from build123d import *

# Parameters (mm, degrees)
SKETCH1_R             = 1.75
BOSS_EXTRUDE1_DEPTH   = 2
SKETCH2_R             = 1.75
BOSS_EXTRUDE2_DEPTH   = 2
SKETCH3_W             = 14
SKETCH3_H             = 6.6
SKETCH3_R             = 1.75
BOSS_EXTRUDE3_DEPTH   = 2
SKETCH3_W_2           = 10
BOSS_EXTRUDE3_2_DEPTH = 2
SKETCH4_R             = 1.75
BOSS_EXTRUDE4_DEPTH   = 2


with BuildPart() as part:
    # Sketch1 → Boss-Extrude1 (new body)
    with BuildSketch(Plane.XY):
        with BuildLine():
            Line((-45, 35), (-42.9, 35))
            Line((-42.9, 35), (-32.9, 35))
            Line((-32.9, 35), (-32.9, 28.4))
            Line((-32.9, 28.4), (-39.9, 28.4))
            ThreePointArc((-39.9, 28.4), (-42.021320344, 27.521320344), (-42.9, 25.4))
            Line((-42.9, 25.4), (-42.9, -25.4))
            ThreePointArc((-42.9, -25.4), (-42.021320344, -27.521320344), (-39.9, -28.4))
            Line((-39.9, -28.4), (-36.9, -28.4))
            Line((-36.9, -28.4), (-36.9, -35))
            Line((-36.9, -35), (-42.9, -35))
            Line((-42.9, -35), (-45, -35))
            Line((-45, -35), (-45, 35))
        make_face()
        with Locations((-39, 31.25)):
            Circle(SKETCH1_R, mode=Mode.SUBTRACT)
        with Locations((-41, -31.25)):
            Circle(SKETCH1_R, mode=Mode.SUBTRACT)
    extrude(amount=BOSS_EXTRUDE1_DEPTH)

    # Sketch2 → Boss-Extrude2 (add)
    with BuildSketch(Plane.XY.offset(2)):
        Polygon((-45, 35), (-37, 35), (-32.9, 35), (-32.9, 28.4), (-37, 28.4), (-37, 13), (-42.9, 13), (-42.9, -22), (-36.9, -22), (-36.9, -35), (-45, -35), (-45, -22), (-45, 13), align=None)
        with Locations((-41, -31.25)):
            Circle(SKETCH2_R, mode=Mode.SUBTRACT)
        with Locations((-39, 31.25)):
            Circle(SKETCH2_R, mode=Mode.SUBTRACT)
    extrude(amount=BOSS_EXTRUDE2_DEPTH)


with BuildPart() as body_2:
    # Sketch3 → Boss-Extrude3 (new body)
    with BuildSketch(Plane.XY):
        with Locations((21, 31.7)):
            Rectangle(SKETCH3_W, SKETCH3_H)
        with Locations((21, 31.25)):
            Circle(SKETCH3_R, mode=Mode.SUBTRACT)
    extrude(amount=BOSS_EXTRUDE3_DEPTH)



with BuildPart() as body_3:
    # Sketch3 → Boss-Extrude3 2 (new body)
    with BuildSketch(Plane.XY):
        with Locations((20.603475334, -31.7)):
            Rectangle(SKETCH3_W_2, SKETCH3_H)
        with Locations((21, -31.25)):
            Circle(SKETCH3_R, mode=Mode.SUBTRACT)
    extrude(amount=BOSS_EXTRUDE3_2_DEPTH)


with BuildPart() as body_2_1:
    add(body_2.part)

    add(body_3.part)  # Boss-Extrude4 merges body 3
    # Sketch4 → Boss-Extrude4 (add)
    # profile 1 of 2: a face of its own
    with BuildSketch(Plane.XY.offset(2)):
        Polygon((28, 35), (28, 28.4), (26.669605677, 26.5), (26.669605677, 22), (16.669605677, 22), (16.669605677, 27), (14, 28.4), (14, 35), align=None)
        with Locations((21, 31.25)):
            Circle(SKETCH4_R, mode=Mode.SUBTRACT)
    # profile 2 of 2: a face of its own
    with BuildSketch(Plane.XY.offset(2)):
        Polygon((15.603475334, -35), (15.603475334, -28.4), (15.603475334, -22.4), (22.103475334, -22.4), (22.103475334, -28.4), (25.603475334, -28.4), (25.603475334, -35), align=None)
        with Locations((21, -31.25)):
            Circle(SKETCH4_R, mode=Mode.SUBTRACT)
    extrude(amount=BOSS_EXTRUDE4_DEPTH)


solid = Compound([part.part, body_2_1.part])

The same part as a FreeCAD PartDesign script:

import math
import FreeCAD as App
import Part
import Sketcher
Q = App.Units.Quantity


def add_polygon(sketch, points):
    """Adds a closed chain of lines whose ends are joined by coincident constraints."""
    first, n = sketch.GeometryCount, len(points)
    for a, b in zip(points, points[1:] + points[:1]):
        sketch.addGeometry(Part.LineSegment(App.Vector(*a, 0), App.Vector(*b, 0)), False)
    for i in range(n):
        sketch.addConstraint(Sketcher.Constraint("Coincident", first + i, 2, first + (i + 1) % n, 1))

doc = App.newDocument("Part")
body = doc.addObject("PartDesign::Body", "Body")

sketch1 = doc.addObject("Sketcher::SketchObject", "Sketch")
body.addObject(sketch1)
sketch1.AttachmentSupport = (doc.XY_Plane, [""])
sketch1.MapMode = "FlatFace"
sketch1.addGeometry([
    Part.LineSegment(App.Vector(-32.9, 35, 0), App.Vector(-45, 35, 0)),
    Part.LineSegment(App.Vector(-45, 35, 0), App.Vector(-45, -35, 0)),
    Part.LineSegment(App.Vector(-45, -35, 0), App.Vector(-36.9, -35, 0)),
    Part.LineSegment(App.Vector(-36.9, -35, 0), App.Vector(-36.9, -28.4, 0)),
    Part.LineSegment(App.Vector(-36.9, -28.4, 0), App.Vector(-39.9, -28.4, 0)),
    Part.ArcOfCircle(Part.Circle(App.Vector(-39.9, -25.4, 0), App.Vector(0, 0, 1), 3), math.radians(180), math.radians(270)),
    Part.LineSegment(App.Vector(-42.9, -25.4, 0), App.Vector(-42.9, 25.4, 0)),
    Part.ArcOfCircle(Part.Circle(App.Vector(-39.9, 25.4, 0), App.Vector(0, 0, 1), 3), math.radians(90), math.radians(180)),
    Part.LineSegment(App.Vector(-39.9, 28.4, 0), App.Vector(-32.9, 28.4, 0)),
    Part.LineSegment(App.Vector(-32.9, 28.4, 0), App.Vector(-32.9, 35, 0)),
    Part.Circle(App.Vector(-41, -31.25, 0), App.Vector(0, 0, 1), 1.75),
    Part.Circle(App.Vector(-39, 31.25, 0), App.Vector(0, 0, 1), 1.75),
], False)
sketch1.addConstraint([
    Sketcher.Constraint("Coincident", 0, 2, 1, 1),
    Sketcher.Constraint("Coincident", 1, 2, 2, 1),
    Sketcher.Constraint("Coincident", 2, 2, 3, 1),
    Sketcher.Constraint("Coincident", 3, 2, 4, 1),
    Sketcher.Constraint("Tangent", 4, 2, 5, 2),
    Sketcher.Constraint("Tangent", 5, 1, 6, 1),
    Sketcher.Constraint("Tangent", 6, 2, 7, 2),
    Sketcher.Constraint("Tangent", 7, 1, 8, 1),
    Sketcher.Constraint("Coincident", 8, 2, 9, 1),
    Sketcher.Constraint("Coincident", 9, 2, 0, 1),
    Sketcher.Constraint("Horizontal", 0),
    Sketcher.Constraint("Vertical", 1),
    Sketcher.Constraint("Horizontal", 2),
    Sketcher.Constraint("Vertical", 3),
    Sketcher.Constraint("Horizontal", 4),
    Sketcher.Constraint("Vertical", 6),
    Sketcher.Constraint("Horizontal", 8),
    Sketcher.Constraint("Vertical", 9),
    Sketcher.Constraint("Equal", 5, 7),
    Sketcher.Constraint("Equal", 10, 11),
    Sketcher.Constraint("Equal", 3, 9),
    Sketcher.Constraint("Radius", 5, 3.0),
    Sketcher.Constraint("Diameter", 10, 3.5),
    Sketcher.Constraint("DistanceX", 4, 2, 4, 1, 3.0),
    Sketcher.Constraint("DistanceX", 8, 1, 8, 2, 7.0),
    Sketcher.Constraint("DistanceY", 1, 2, 1, 1, 70.0),
    Sketcher.Constraint("DistanceX", 0, 2, 0, 1, 12.1),
    Sketcher.Constraint("DistanceY", 3, 1, 3, 2, 6.6),
    Sketcher.Constraint("DistanceX", 10, 3, -1, 1, 41.0),
    Sketcher.Constraint("DistanceX", 11, 3, -1, 1, 39.0),
    Sketcher.Constraint("DistanceX", 0, 2, -1, 1, 45.0),
    Sketcher.Constraint("DistanceY", -1, 1, 0, 2, 35.0),
    Sketcher.Constraint("DistanceY", 10, 3, 11, 3, 62.5),
    Sketcher.Constraint("DistanceY", 10, 3, -1, 1, 31.25),
])
pad1 = doc.addObject("PartDesign::Pad", "Pad")
body.addObject(pad1)
pad1.Profile = sketch1
pad1.Length = 2

sketch2 = doc.addObject("Sketcher::SketchObject", "Sketch001")
body.addObject(sketch2)
sketch2.AttachmentSupport = (doc.XY_Plane, [""])
sketch2.MapMode = "FlatFace"
sketch2.AttachmentOffset = App.Placement(App.Vector(0, 0, 2), App.Rotation())
add_polygon(sketch2, [(-32.9, 35), (-45, 35), (-45, -35), (-36.9, -35), (-36.9, -22), (-42.9, -22), (-42.9, 13), (-37, 13), (-37, 28.4), (-32.9, 28.4)])
sketch2.addGeometry(Part.Circle(App.Vector(-41, -31.25, 0), App.Vector(0, 0, 1), 1.75), False)
sketch2.addGeometry(Part.Circle(App.Vector(-39, 31.25, 0), App.Vector(0, 0, 1), 1.75), False)
sketch2.addConstraint([
    Sketcher.Constraint("Horizontal", 0),
    Sketcher.Constraint("Vertical", 1),
    Sketcher.Constraint("Horizontal", 2),
    Sketcher.Constraint("Vertical", 3),
    Sketcher.Constraint("Horizontal", 4),
    Sketcher.Constraint("Vertical", 5),
    Sketcher.Constraint("Horizontal", 6),
    Sketcher.Constraint("Vertical", 7),
    Sketcher.Constraint("Horizontal", 8),
    Sketcher.Constraint("Vertical", 9),
    Sketcher.Constraint("Equal", 10, 11),
    Sketcher.Constraint("Diameter", 10, 3.5),
    Sketcher.Constraint("DistanceX", 4, 2, 4, 1, 6.0),
    Sketcher.Constraint("DistanceY", 1, 2, 1, 1, 70.0),
    Sketcher.Constraint("DistanceY", 3, 1, 3, 2, 13.0),
    Sketcher.Constraint("DistanceY", 5, 1, 5, 2, 35.0),
    Sketcher.Constraint("DistanceX", 0, 2, 0, 1, 12.1),
    Sketcher.Constraint("DistanceX", 2, 1, 2, 2, 8.1),
    Sketcher.Constraint("DistanceX", 6, 1, 6, 2, 5.9),
    Sketcher.Constraint("DistanceY", 7, 1, 7, 2, 15.4),
    Sketcher.Constraint("DistanceX", 10, 3, -1, 1, 41.0),
    Sketcher.Constraint("DistanceX", 11, 3, -1, 1, 39.0),
    Sketcher.Constraint("DistanceX", 0, 2, -1, 1, 45.0),
    Sketcher.Constraint("DistanceY", -1, 1, 0, 2, 35.0),
    Sketcher.Constraint("DistanceY", 10, 3, 11, 3, 62.5),
    Sketcher.Constraint("DistanceY", 10, 3, -1, 1, 31.25),
])
pad2 = doc.addObject("PartDesign::Pad", "Pad001")
body.addObject(pad2)
pad2.Profile = sketch2
pad2.Length = 2
body2 = doc.addObject("PartDesign::Body", "Body001")

sketch3 = doc.addObject("Sketcher::SketchObject", "Sketch002")
body2.addObject(sketch3)
sketch3.AttachmentSupport = (doc.getObject("XY_Plane001"), [""])
sketch3.MapMode = "FlatFace"
add_polygon(sketch3, [(14, 35), (14, 28.4), (28, 28.4), (28, 35)])
sketch3.addGeometry(Part.Circle(App.Vector(21, 31.25, 0), App.Vector(0, 0, 1), 1.75), False)
sketch3.addConstraint([
    Sketcher.Constraint("Vertical", 0),
    Sketcher.Constraint("Horizontal", 1),
    Sketcher.Constraint("Vertical", 2),
    Sketcher.Constraint("Horizontal", 3),
    Sketcher.Constraint("Diameter", 4, 3.5),
    Sketcher.Constraint("DistanceX", 1, 1, 1, 2, 14.0),
    Sketcher.Constraint("DistanceY", 0, 2, 0, 1, 6.6),
    Sketcher.Constraint("DistanceX", -1, 1, 4, 3, 21.0),
    Sketcher.Constraint("DistanceX", -1, 1, 0, 2, 14.0),
    Sketcher.Constraint("DistanceY", -1, 1, 2, 2, 35.0),
    Sketcher.Constraint("DistanceY", -1, 1, 4, 3, 31.25),
])
pad3 = doc.addObject("PartDesign::Pad", "Pad002")
body2.addObject(pad3)
pad3.Profile = sketch3
pad3.Length = 2
body3 = doc.addObject("PartDesign::Body", "Body002")

sketch4 = doc.addObject("Sketcher::SketchObject", "Sketch003")
body3.addObject(sketch4)
sketch4.AttachmentSupport = (doc.getObject("XY_Plane002"), [""])
sketch4.MapMode = "FlatFace"
add_polygon(sketch4, [(15.603475, -28.4), (15.603475, -35), (25.603475, -35), (25.603475, -28.4)])
sketch4.addGeometry(Part.Circle(App.Vector(21, -31.25, 0), App.Vector(0, 0, 1), 1.75), False)
sketch4.addConstraint([
    Sketcher.Constraint("Vertical", 0),
    Sketcher.Constraint("Horizontal", 1),
    Sketcher.Constraint("Vertical", 2),
    Sketcher.Constraint("Horizontal", 3),
    Sketcher.Constraint("Diameter", 4, 3.5),
    Sketcher.Constraint("DistanceX", 1, 1, 1, 2, 10.0),
    Sketcher.Constraint("DistanceY", 0, 2, 0, 1, 6.6),
    Sketcher.Constraint("DistanceX", -1, 1, 4, 3, 21.0),
    Sketcher.Constraint("DistanceY", 0, 2, -1, 1, 35.0),
    Sketcher.Constraint("DistanceY", 4, 3, -1, 1, 31.25),
    Sketcher.Constraint("DistanceX", -1, 1, 0, 2, 15.603475),
])
pad4 = doc.addObject("PartDesign::Pad", "Pad003")
body3.addObject(pad4)
pad4.Profile = sketch4
pad4.Length = 2
body2.AllowCompound = True
doc.recompute()

boolean = doc.addObject("PartDesign::Boolean", "Boolean")
body2.addObject(boolean)
boolean.Type = "Fuse"
boolean.addObjects([body3])

sketch5 = doc.addObject("Sketcher::SketchObject", "Sketch004")
body2.addObject(sketch5)
sketch5.AttachmentSupport = (doc.getObject("XY_Plane001"), [""])
sketch5.MapMode = "FlatFace"
sketch5.AttachmentOffset = App.Placement(App.Vector(0, 0, 2), App.Rotation())
add_polygon(sketch5, [(28, 28.4), (28, 35), (14, 35), (14, 28.4), (16.669606, 27), (16.669606, 22), (26.669606, 22), (26.669606, 26.5)])
sketch5.addGeometry(Part.Circle(App.Vector(21, 31.25, 0), App.Vector(0, 0, 1), 1.75), False)
add_polygon(sketch5, [(15.603475, -22.4), (15.603475, -35), (25.603475, -35), (25.603475, -28.4), (22.103475, -28.4), (22.103475, -22.4)])
sketch5.addGeometry(Part.Circle(App.Vector(21, -31.25, 0), App.Vector(0, 0, 1), 1.75), False)
sketch5.addConstraint([
    Sketcher.Constraint("Vertical", 0),
    Sketcher.Constraint("Horizontal", 1),
    Sketcher.Constraint("Vertical", 2),
    Sketcher.Constraint("Vertical", 4),
    Sketcher.Constraint("Horizontal", 5),
    Sketcher.Constraint("Vertical", 6),
    Sketcher.Constraint("Vertical", 9),
    Sketcher.Constraint("Horizontal", 10),
    Sketcher.Constraint("Vertical", 11),
    Sketcher.Constraint("Horizontal", 12),
    Sketcher.Constraint("Vertical", 13),
    Sketcher.Constraint("Horizontal", 14),
    Sketcher.Constraint("Equal", 8, 15),
    Sketcher.Constraint("Symmetric", 8, 3, 15, 3, -1),
    Sketcher.Constraint("Horizontal", 2, 2, 7, 2),
    Sketcher.Constraint("Equal", 5, 10),
    Sketcher.Constraint("Equal", 2, 11),
    Sketcher.Constraint("Diameter", 8, 3.5),
    Sketcher.Constraint("DistanceX", 1, 2, 1, 1, 14.0),
    Sketcher.Constraint("DistanceX", 5, 1, 5, 2, 10.0),
    Sketcher.Constraint("DistanceY", 4, 2, 4, 1, 5.0),
    Sketcher.Constraint("DistanceY", 13, 1, 13, 2, 6.0),
    Sketcher.Constraint("Angle", 7, Q("55 deg")),
    Sketcher.Constraint("DistanceX", 12, 2, 12, 1, 3.5),
    Sketcher.Constraint("DistanceY", 0, 1, 0, 2, 6.6),
    Sketcher.Constraint("DistanceY", 6, 1, 6, 2, 4.5),
    Sketcher.Constraint("DistanceX", -1, 1, 8, 3, 21.0),
    Sketcher.Constraint("DistanceX", -1, 1, 0, 2, 28.0),
    Sketcher.Constraint("DistanceY", -1, 1, 0, 2, 35.0),
    Sketcher.Constraint("DistanceY", -1, 1, 3, 2, 27.0),
    Sketcher.Constraint("DistanceY", 9, 2, -1, 1, 35.0),
    Sketcher.Constraint("DistanceY", 15, 3, 8, 3, 62.5),
    Sketcher.Constraint("DistanceX", 9, 2, 4, 2, 1.06613),
])
pad5 = doc.addObject("PartDesign::Pad", "Pad004")
body2.addObject(pad5)
pad5.Profile = sketch5
pad5.Length = 2

doc.recompute()
